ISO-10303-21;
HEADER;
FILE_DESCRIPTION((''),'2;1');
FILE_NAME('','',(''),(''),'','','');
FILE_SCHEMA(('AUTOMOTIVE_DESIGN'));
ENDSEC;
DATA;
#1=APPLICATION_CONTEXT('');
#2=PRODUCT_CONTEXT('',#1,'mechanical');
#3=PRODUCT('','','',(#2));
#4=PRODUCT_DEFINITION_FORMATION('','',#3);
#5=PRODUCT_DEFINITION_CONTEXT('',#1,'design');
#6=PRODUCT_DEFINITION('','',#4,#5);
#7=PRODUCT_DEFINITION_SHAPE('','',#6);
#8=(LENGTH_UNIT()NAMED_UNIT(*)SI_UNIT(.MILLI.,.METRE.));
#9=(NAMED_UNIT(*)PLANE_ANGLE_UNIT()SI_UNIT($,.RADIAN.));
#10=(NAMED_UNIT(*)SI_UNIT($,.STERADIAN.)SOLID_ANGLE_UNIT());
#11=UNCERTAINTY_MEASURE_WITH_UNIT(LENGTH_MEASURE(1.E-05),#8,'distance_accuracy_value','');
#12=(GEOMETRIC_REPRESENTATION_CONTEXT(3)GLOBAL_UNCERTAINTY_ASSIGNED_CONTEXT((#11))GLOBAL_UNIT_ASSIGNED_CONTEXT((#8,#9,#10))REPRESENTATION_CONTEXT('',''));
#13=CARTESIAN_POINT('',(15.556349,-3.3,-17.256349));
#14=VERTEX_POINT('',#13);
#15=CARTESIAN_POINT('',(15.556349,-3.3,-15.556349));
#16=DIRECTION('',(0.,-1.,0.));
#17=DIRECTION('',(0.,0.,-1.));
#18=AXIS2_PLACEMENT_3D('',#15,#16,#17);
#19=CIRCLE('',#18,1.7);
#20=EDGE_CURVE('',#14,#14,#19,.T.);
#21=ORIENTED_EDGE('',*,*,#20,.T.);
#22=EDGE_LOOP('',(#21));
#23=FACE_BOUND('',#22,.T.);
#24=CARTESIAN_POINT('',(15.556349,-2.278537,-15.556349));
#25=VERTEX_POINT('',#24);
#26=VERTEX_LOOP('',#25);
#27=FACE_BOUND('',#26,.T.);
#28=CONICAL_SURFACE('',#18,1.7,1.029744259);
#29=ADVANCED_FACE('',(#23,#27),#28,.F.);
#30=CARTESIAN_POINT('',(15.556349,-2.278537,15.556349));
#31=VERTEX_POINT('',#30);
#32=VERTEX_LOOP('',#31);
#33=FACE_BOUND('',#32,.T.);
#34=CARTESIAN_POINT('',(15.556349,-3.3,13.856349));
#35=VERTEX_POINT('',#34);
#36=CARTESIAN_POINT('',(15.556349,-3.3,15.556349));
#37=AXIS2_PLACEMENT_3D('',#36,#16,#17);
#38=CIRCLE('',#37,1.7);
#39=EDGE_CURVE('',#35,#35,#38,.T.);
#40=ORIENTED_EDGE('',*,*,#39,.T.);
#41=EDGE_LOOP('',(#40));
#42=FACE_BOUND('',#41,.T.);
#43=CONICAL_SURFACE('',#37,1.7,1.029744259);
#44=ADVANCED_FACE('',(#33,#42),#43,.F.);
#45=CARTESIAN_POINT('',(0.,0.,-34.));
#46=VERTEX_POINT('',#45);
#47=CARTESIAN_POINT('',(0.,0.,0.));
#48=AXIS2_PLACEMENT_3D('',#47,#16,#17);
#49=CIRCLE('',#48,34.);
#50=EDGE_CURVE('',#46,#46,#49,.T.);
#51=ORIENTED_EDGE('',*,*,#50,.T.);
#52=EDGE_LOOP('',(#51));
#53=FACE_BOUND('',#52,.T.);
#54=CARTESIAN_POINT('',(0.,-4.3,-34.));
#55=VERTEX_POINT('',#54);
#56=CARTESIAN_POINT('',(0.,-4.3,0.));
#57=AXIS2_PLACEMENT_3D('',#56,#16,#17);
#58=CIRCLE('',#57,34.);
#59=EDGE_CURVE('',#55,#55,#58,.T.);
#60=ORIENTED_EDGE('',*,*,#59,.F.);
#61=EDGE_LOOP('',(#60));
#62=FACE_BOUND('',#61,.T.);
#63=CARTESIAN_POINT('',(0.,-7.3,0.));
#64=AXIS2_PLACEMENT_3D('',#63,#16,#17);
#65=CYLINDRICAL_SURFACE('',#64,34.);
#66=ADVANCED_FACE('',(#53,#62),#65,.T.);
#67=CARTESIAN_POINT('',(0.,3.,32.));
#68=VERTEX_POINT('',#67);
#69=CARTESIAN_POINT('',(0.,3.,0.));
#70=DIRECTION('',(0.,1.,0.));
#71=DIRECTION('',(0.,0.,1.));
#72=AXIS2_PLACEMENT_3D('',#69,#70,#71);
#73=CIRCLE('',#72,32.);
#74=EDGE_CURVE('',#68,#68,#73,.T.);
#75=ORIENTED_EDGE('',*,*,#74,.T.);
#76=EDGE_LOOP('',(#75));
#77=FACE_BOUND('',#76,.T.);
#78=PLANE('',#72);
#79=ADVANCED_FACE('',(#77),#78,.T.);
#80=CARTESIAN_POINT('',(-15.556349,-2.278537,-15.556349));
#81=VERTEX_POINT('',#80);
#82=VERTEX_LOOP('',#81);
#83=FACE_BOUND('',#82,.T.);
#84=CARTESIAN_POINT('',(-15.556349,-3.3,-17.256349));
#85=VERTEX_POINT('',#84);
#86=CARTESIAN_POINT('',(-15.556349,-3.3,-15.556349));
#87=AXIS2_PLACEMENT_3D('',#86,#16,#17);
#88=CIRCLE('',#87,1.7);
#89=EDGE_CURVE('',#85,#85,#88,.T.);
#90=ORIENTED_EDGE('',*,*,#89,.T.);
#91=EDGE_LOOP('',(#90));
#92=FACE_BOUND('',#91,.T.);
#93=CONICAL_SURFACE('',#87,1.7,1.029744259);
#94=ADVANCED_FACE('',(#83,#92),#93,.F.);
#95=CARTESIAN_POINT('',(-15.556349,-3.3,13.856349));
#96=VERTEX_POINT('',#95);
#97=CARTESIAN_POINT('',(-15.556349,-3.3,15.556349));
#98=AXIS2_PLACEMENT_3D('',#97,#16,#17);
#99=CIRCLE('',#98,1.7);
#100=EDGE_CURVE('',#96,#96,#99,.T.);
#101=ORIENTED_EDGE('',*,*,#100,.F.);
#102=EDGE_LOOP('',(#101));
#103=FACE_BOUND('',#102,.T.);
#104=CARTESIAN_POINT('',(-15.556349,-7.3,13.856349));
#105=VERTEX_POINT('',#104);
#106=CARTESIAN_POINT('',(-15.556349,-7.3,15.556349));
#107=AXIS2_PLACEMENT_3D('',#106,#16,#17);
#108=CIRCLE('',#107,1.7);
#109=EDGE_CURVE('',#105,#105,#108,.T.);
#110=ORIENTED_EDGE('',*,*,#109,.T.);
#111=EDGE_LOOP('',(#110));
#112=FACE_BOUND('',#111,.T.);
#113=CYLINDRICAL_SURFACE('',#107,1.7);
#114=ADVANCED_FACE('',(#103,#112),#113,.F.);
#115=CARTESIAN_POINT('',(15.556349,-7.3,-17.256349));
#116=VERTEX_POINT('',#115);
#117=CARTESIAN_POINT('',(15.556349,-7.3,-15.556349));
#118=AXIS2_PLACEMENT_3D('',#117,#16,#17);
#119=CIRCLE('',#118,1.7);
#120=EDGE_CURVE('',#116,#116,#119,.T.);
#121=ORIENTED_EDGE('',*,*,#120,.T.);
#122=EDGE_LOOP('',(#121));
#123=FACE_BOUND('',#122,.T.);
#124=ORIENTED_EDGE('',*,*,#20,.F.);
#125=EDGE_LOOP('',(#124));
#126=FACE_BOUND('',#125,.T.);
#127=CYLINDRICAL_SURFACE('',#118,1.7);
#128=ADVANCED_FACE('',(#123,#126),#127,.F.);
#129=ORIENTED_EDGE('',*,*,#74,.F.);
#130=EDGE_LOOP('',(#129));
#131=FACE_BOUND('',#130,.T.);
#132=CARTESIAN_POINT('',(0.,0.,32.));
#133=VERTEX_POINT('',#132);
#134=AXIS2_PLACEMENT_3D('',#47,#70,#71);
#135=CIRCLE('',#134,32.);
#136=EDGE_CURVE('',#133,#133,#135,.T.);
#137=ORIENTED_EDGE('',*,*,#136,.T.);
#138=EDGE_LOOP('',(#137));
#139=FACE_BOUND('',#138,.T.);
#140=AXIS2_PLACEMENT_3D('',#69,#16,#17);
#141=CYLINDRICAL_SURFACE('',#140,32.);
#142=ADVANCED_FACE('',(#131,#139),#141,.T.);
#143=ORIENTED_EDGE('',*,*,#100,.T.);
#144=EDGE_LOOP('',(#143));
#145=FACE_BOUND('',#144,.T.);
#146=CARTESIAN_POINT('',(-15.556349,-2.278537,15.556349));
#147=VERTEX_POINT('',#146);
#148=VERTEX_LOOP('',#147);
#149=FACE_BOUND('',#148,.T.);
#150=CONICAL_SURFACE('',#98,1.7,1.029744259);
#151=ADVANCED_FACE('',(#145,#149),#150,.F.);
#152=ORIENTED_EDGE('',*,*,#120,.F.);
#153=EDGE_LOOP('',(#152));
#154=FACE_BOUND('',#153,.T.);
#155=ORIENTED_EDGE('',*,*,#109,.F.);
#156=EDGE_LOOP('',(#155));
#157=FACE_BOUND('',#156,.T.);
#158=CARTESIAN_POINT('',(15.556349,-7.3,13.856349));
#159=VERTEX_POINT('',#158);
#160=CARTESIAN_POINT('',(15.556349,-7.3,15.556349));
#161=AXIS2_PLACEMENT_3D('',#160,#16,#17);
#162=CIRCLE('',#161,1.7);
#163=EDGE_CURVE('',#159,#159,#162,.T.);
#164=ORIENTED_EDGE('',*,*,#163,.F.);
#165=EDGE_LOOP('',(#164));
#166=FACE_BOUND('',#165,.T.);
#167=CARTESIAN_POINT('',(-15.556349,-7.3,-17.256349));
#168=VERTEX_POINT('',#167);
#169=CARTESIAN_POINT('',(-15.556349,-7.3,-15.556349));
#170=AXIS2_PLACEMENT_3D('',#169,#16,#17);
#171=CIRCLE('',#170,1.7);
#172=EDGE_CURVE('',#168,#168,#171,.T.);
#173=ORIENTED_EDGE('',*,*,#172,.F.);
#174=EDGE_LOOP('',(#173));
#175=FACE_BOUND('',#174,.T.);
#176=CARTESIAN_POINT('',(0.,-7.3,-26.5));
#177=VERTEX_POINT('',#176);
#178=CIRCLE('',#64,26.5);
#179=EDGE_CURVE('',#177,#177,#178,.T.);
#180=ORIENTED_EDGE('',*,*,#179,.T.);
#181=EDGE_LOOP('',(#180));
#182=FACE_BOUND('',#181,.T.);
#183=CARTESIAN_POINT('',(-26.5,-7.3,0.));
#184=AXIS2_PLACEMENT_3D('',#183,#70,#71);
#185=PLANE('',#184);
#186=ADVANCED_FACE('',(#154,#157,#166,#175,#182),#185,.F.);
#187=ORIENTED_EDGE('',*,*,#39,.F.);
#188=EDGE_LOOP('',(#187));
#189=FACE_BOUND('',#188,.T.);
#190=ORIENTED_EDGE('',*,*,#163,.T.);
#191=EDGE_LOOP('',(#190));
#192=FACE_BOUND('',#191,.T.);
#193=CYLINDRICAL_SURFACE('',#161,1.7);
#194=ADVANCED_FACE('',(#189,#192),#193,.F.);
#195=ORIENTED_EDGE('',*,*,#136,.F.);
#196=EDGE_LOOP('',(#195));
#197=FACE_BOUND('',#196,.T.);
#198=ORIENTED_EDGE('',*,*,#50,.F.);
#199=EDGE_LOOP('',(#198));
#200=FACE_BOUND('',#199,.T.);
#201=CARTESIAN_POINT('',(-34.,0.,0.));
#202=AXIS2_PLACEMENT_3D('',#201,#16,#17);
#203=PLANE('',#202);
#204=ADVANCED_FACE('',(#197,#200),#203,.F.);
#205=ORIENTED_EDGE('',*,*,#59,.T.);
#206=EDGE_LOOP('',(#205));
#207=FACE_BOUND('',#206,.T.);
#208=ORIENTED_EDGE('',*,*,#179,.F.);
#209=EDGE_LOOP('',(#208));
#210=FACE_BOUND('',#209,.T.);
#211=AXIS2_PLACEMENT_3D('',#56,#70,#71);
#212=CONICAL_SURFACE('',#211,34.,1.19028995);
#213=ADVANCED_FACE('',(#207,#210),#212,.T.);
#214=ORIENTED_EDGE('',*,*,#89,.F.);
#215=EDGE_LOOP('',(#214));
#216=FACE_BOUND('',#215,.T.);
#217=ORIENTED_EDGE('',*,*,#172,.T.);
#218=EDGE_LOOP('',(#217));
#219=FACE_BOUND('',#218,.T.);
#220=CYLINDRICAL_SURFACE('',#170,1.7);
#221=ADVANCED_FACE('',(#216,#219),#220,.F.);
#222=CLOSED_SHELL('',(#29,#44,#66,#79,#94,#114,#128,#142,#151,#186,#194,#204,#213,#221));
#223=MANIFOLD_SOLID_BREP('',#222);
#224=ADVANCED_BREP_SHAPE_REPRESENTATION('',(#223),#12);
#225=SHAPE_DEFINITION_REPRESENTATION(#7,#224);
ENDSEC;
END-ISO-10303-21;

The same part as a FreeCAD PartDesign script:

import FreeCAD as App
import Part
import Sketcher
from FreeCAD import Vector

doc = App.newDocument("Part")
body = doc.addObject("PartDesign::Body", "Body")

# Sketch on XY plane
sketch1 = body.newObject("Sketcher::SketchObject", "Sketch")
sketch1.AttachmentSupport = (doc.getObject("XY_Plane"), [""])
sketch1.MapMode = "FlatFace"
sketch1.addGeometry(Part.LineSegment(Vector(-34, -4.3, 0), Vector(-26.5, -7.3, 0)), False)
sketch1.addGeometry(Part.LineSegment(Vector(-26.5, -7.3, 0), Vector(0, -7.3, 0)), False)
sketch1.addGeometry(Part.LineSegment(Vector(0, -7.3, 0), Vector(0, 0, 0)), False)
sketch1.addGeometry(Part.LineSegment(Vector(0, 0, 0), Vector(-34, 0, 0)), False)
sketch1.addGeometry(Part.LineSegment(Vector(-34, 0, 0), Vector(-34, -4.3, 0)), False)
sketch1.addConstraint(Sketcher.Constraint("Coincident", 0, 2, 1, 1))
sketch1.addConstraint(Sketcher.Constraint("Coincident", 1, 2, 2, 1))
sketch1.addConstraint(Sketcher.Constraint("Coincident", 2, 2, 3, 1))
sketch1.addConstraint(Sketcher.Constraint("Coincident", 3, 2, 4, 1))
sketch1.addConstraint(Sketcher.Constraint("Coincident", 4, 2, 0, 1))
sketch1.addConstraint(Sketcher.Constraint("Horizontal", 1))
sketch1.addConstraint(Sketcher.Constraint("Vertical", 2))
sketch1.addConstraint(Sketcher.Constraint("Horizontal", 3))
sketch1.addConstraint(Sketcher.Constraint("Vertical", 4))
sketch1.addConstraint(Sketcher.Constraint("Coincident", 2, 2, -1, 1))
sketch1.addConstraint(Sketcher.Constraint("DistanceX", 3, 2, 3, 1, 34.0))
sketch1.addConstraint(Sketcher.Constraint("DistanceX", 1, 1, 1, 2, 26.5))
sketch1.addConstraint(Sketcher.Constraint("DistanceY", 2, 1, 2, 2, 7.3))
sketch1.addConstraint(Sketcher.Constraint("DistanceY", 4, 2, 4, 1, 4.3))
revolution = body.newObject("PartDesign::Revolution", "Revolution")
revolution.Profile = sketch1
revolution.ReferenceAxis = (sketch1, ["V_Axis"])
revolution.Angle = 360

# Sketch on XZ plane
sketch2 = body.newObject("Sketcher::SketchObject", "Sketch001")
sketch2.AttachmentSupport = (doc.getObject("XZ_Plane"), [""])
sketch2.MapMode = "FlatFace"
sketch2.addGeometry(Part.Circle(Vector(0, 0, 0), Vector(0, 0, 1), 32), False)
sketch2.addConstraint(Sketcher.Constraint("Coincident", 0, 3, -1, 1))
sketch2.addConstraint(Sketcher.Constraint("Diameter", 0, 64.0))
pad1 = body.newObject("PartDesign::Pad", "Pad")
pad1.Profile = sketch2
pad1.Length = 3
pad1.Reversed = True

# Sketch on XZ plane
sketch3 = body.newObject("Sketcher::SketchObject", "Sketch002")
sketch3.AttachmentSupport = (doc.getObject("XZ_Plane"), [""])
sketch3.MapMode = "FlatFace"
sketch3.AttachmentOffset = App.Placement(Vector(0, 0, 7.3), App.Rotation())
sketch3.addGeometry(Part.Circle(Vector(-15.6, 15.6, 0), Vector(0, 0, 1), 1.7), False)
sketch3.addGeometry(Part.Circle(Vector(-15.6, -15.6, 0), Vector(0, 0, 1), 1.7), False)
sketch3.addGeometry(Part.Circle(Vector(15.6, -15.6, 0), Vector(0, 0, 1), 1.7), False)
sketch3.addGeometry(Part.Circle(Vector(15.6, 15.6, 0), Vector(0, 0, 1), 1.7), False)
sketch3.addConstraint(Sketcher.Constraint("Equal", 0, 1))
sketch3.addConstraint(Sketcher.Constraint("Equal", 1, 2))
sketch3.addConstraint(Sketcher.Constraint("Equal", 2, 3))
sketch3.addConstraint(Sketcher.Constraint("Symmetric", 0, 3, 2, 3, -1, 1))
sketch3.addConstraint(Sketcher.Constraint("Symmetric", 1, 3, 3, 3, -1, 1))
sketch3.addConstraint(Sketcher.Constraint("Symmetric", 1, 3, 2, 3, -2))
sketch3.addConstraint(Sketcher.Constraint("Diameter", 0, 3.4))
sketch3.addConstraint(Sketcher.Constraint("DistanceY", 1, 3, 0, 3, 31.112698))
sketch3.addConstraint(Sketcher.Constraint("DistanceX", 1, 3, 2, 3, 31.112698))
doc.recompute()
hole = body.newObject("PartDesign::Hole", "Hole")
hole.Profile = sketch3
hole.ThreadType = "None"
hole.Diameter = 3.4
hole.DepthType = "Dimension"
hole.Depth = 4
hole.DrillPoint = "Angled"
hole.DrillPointAngle = 118

doc.recompute()
